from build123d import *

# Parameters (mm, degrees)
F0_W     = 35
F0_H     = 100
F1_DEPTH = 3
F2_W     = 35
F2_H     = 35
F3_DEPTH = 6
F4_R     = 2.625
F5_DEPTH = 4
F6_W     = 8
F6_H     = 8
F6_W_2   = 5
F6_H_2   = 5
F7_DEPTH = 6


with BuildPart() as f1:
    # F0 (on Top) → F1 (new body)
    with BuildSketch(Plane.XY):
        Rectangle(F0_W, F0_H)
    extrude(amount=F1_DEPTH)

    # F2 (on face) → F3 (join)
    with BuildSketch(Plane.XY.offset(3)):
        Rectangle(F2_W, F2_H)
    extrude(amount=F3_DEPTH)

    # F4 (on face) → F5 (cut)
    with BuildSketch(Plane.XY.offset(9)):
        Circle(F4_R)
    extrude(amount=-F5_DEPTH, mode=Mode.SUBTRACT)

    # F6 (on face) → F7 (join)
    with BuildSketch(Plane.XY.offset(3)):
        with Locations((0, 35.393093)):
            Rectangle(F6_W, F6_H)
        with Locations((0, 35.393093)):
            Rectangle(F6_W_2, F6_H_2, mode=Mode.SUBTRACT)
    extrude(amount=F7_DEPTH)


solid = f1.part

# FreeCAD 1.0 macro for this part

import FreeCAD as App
import Part
import Sketcher


def add_polygon(sketch, points):
    """Adds a closed chain of lines whose ends are joined by coincident constraints."""
    first, n = sketch.GeometryCount, len(points)
    for a, b in zip(points, points[1:] + points[:1]):
        sketch.addGeometry(Part.LineSegment(App.Vector(*a, 0), App.Vector(*b, 0)), False)
    for i in range(n):
        sketch.addConstraint(Sketcher.Constraint("Coincident", first + i, 2, first + (i + 1) % n, 1))

doc = App.newDocument("Part")
body = doc.addObject("PartDesign::Body", "Body")

# Sketch on XY plane
sketch1 = body.newObject("Sketcher::SketchObject", "Sketch")
sketch1.AttachmentSupport = (doc.getObject("XY_Plane"), [""])
sketch1.MapMode = "FlatFace"
add_polygon(sketch1, [(-17.5, 50), (-17.5, -50), (17.5, -50), (17.5, 50)])  # lines 0-3
sketch1.addConstraint(Sketcher.Constraint("Vertical", 0))
sketch1.addConstraint(Sketcher.Constraint("Horizontal", 1))
sketch1.addConstraint(Sketcher.Constraint("Vertical", 2))
sketch1.addConstraint(Sketcher.Constraint("Horizontal", 3))
sketch1.addConstraint(Sketcher.Constraint("Symmetric", 0, 2, 2, 2, -1, 1))
sketch1.addConstraint(Sketcher.Constraint("DistanceX", 1, 1, 1, 2, 35.0))
sketch1.addConstraint(Sketcher.Constraint("DistanceY", 0, 2, 0, 1, 100.0))
pad1 = body.newObject("PartDesign::Pad", "Pad")
pad1.Profile = sketch1
pad1.Length = 3

# Sketch on XY plane
sketch2 = body.newObject("Sketcher::SketchObject", "Sketch001")
sketch2.AttachmentSupport = (doc.getObject("XY_Plane"), [""])
sketch2.MapMode = "FlatFace"
sketch2.AttachmentOffset = App.Placement(App.Vector(0, 0, 3), App.Rotation())
add_polygon(sketch2, [(-17.5, 17.5), (-17.5, -17.5), (17.5, -17.5), (17.5, 17.5)])  # lines 0-3
sketch2.addConstraint(Sketcher.Constraint("Vertical", 0))
sketch2.addConstraint(Sketcher.Constraint("Horizontal", 1))
sketch2.addConstraint(Sketcher.Constraint("Vertical", 2))
sketch2.addConstraint(Sketcher.Constraint("Horizontal", 3))
sketch2.addConstraint(Sketcher.Constraint("Symmetric", 0, 2, 2, 2, -1, 1))
sketch2.addConstraint(Sketcher.Constraint("Equal", 3, 0))
sketch2.addConstraint(Sketcher.Constraint("DistanceX", 1, 1, 1, 2, 35.0))
pad2 = body.newObject("PartDesign::Pad", "Pad001")
pad2.Profile = sketch2
pad2.Length = 6

# Sketch on XY plane
sketch3 = body.newObject("Sketcher::SketchObject", "Sketch002")
sketch3.AttachmentSupport = (doc.getObject("XY_Plane"), [""])
sketch3.MapMode = "FlatFace"
sketch3.AttachmentOffset = App.Placement(App.Vector(0, 0, 9), App.Rotation())
sketch3.addGeometry(Part.Circle(App.Vector(0, 0, 0), App.Vector(0, 0, 1), 2.625), False)
sketch3.addConstraint(Sketcher.Constraint("Coincident", 0, 3, -1, 1))
sketch3.addConstraint(Sketcher.Constraint("Diameter", 0, 5.25))
pocket1 = body.newObject("PartDesign::Pocket", "Pocket")
pocket1.Profile = sketch3
pocket1.Length = 4

# Sketch on XY plane
sketch4 = body.newObject("Sketcher::SketchObject", "Sketch003")
sketch4.AttachmentSupport = (doc.getObject("XY_Plane"), [""])
sketch4.MapMode = "FlatFace"
sketch4.AttachmentOffset = App.Placement(App.Vector(0, 0, 3), App.Rotation())
add_polygon(sketch4, [(-4, 39.393093), (-4, 31.393093), (4, 31.393093), (4, 39.393093)])  # lines 0-3
add_polygon(sketch4, [(2.5, 32.893093), (-2.5, 32.893093), (-2.5, 37.893093), (2.5, 37.893093)])  # lines 4-7
sketch4.addConstraint(Sketcher.Constraint("Vertical", 0))
sketch4.addConstraint(Sketcher.Constraint("Horizontal", 1))
sketch4.addConstraint(Sketcher.Constraint("Vertical", 2))
sketch4.addConstraint(Sketcher.Constraint("Horizontal", 3))
sketch4.addConstraint(Sketcher.Constraint("Horizontal", 4))
sketch4.addConstraint(Sketcher.Constraint("Vertical", 5))
sketch4.addConstraint(Sketcher.Constraint("Horizontal", 6))
sketch4.addConstraint(Sketcher.Constraint("Vertical", 7))
sketch4.addConstraint(Sketcher.Constraint("Equal", 3, 0))
sketch4.addConstraint(Sketcher.Constraint("Equal", 6, 5))
sketch4.addConstraint(Sketcher.Constraint("DistanceX", 1, 1, 1, 2, 8.0))
sketch4.addConstraint(Sketcher.Constraint("DistanceX", 4, 2, 4, 1, 5.0))
sketch4.addConstraint(Sketcher.Constraint("DistanceX", 0, 2, -1, 1, 4.0))
sketch4.addConstraint(Sketcher.Constraint("DistanceX", 4, 2, -1, 1, 2.5))
sketch4.addConstraint(Sketcher.Constraint("DistanceY", 0, 2, 4, 2, 1.5))
sketch4.addConstraint(Sketcher.Constraint("DistanceY", -1, 1, 0, 2, 31.393093))
pad3 = body.newObject("PartDesign::Pad", "Pad002")
pad3.Profile = sketch4
pad3.Length = 6

doc.recompute()
